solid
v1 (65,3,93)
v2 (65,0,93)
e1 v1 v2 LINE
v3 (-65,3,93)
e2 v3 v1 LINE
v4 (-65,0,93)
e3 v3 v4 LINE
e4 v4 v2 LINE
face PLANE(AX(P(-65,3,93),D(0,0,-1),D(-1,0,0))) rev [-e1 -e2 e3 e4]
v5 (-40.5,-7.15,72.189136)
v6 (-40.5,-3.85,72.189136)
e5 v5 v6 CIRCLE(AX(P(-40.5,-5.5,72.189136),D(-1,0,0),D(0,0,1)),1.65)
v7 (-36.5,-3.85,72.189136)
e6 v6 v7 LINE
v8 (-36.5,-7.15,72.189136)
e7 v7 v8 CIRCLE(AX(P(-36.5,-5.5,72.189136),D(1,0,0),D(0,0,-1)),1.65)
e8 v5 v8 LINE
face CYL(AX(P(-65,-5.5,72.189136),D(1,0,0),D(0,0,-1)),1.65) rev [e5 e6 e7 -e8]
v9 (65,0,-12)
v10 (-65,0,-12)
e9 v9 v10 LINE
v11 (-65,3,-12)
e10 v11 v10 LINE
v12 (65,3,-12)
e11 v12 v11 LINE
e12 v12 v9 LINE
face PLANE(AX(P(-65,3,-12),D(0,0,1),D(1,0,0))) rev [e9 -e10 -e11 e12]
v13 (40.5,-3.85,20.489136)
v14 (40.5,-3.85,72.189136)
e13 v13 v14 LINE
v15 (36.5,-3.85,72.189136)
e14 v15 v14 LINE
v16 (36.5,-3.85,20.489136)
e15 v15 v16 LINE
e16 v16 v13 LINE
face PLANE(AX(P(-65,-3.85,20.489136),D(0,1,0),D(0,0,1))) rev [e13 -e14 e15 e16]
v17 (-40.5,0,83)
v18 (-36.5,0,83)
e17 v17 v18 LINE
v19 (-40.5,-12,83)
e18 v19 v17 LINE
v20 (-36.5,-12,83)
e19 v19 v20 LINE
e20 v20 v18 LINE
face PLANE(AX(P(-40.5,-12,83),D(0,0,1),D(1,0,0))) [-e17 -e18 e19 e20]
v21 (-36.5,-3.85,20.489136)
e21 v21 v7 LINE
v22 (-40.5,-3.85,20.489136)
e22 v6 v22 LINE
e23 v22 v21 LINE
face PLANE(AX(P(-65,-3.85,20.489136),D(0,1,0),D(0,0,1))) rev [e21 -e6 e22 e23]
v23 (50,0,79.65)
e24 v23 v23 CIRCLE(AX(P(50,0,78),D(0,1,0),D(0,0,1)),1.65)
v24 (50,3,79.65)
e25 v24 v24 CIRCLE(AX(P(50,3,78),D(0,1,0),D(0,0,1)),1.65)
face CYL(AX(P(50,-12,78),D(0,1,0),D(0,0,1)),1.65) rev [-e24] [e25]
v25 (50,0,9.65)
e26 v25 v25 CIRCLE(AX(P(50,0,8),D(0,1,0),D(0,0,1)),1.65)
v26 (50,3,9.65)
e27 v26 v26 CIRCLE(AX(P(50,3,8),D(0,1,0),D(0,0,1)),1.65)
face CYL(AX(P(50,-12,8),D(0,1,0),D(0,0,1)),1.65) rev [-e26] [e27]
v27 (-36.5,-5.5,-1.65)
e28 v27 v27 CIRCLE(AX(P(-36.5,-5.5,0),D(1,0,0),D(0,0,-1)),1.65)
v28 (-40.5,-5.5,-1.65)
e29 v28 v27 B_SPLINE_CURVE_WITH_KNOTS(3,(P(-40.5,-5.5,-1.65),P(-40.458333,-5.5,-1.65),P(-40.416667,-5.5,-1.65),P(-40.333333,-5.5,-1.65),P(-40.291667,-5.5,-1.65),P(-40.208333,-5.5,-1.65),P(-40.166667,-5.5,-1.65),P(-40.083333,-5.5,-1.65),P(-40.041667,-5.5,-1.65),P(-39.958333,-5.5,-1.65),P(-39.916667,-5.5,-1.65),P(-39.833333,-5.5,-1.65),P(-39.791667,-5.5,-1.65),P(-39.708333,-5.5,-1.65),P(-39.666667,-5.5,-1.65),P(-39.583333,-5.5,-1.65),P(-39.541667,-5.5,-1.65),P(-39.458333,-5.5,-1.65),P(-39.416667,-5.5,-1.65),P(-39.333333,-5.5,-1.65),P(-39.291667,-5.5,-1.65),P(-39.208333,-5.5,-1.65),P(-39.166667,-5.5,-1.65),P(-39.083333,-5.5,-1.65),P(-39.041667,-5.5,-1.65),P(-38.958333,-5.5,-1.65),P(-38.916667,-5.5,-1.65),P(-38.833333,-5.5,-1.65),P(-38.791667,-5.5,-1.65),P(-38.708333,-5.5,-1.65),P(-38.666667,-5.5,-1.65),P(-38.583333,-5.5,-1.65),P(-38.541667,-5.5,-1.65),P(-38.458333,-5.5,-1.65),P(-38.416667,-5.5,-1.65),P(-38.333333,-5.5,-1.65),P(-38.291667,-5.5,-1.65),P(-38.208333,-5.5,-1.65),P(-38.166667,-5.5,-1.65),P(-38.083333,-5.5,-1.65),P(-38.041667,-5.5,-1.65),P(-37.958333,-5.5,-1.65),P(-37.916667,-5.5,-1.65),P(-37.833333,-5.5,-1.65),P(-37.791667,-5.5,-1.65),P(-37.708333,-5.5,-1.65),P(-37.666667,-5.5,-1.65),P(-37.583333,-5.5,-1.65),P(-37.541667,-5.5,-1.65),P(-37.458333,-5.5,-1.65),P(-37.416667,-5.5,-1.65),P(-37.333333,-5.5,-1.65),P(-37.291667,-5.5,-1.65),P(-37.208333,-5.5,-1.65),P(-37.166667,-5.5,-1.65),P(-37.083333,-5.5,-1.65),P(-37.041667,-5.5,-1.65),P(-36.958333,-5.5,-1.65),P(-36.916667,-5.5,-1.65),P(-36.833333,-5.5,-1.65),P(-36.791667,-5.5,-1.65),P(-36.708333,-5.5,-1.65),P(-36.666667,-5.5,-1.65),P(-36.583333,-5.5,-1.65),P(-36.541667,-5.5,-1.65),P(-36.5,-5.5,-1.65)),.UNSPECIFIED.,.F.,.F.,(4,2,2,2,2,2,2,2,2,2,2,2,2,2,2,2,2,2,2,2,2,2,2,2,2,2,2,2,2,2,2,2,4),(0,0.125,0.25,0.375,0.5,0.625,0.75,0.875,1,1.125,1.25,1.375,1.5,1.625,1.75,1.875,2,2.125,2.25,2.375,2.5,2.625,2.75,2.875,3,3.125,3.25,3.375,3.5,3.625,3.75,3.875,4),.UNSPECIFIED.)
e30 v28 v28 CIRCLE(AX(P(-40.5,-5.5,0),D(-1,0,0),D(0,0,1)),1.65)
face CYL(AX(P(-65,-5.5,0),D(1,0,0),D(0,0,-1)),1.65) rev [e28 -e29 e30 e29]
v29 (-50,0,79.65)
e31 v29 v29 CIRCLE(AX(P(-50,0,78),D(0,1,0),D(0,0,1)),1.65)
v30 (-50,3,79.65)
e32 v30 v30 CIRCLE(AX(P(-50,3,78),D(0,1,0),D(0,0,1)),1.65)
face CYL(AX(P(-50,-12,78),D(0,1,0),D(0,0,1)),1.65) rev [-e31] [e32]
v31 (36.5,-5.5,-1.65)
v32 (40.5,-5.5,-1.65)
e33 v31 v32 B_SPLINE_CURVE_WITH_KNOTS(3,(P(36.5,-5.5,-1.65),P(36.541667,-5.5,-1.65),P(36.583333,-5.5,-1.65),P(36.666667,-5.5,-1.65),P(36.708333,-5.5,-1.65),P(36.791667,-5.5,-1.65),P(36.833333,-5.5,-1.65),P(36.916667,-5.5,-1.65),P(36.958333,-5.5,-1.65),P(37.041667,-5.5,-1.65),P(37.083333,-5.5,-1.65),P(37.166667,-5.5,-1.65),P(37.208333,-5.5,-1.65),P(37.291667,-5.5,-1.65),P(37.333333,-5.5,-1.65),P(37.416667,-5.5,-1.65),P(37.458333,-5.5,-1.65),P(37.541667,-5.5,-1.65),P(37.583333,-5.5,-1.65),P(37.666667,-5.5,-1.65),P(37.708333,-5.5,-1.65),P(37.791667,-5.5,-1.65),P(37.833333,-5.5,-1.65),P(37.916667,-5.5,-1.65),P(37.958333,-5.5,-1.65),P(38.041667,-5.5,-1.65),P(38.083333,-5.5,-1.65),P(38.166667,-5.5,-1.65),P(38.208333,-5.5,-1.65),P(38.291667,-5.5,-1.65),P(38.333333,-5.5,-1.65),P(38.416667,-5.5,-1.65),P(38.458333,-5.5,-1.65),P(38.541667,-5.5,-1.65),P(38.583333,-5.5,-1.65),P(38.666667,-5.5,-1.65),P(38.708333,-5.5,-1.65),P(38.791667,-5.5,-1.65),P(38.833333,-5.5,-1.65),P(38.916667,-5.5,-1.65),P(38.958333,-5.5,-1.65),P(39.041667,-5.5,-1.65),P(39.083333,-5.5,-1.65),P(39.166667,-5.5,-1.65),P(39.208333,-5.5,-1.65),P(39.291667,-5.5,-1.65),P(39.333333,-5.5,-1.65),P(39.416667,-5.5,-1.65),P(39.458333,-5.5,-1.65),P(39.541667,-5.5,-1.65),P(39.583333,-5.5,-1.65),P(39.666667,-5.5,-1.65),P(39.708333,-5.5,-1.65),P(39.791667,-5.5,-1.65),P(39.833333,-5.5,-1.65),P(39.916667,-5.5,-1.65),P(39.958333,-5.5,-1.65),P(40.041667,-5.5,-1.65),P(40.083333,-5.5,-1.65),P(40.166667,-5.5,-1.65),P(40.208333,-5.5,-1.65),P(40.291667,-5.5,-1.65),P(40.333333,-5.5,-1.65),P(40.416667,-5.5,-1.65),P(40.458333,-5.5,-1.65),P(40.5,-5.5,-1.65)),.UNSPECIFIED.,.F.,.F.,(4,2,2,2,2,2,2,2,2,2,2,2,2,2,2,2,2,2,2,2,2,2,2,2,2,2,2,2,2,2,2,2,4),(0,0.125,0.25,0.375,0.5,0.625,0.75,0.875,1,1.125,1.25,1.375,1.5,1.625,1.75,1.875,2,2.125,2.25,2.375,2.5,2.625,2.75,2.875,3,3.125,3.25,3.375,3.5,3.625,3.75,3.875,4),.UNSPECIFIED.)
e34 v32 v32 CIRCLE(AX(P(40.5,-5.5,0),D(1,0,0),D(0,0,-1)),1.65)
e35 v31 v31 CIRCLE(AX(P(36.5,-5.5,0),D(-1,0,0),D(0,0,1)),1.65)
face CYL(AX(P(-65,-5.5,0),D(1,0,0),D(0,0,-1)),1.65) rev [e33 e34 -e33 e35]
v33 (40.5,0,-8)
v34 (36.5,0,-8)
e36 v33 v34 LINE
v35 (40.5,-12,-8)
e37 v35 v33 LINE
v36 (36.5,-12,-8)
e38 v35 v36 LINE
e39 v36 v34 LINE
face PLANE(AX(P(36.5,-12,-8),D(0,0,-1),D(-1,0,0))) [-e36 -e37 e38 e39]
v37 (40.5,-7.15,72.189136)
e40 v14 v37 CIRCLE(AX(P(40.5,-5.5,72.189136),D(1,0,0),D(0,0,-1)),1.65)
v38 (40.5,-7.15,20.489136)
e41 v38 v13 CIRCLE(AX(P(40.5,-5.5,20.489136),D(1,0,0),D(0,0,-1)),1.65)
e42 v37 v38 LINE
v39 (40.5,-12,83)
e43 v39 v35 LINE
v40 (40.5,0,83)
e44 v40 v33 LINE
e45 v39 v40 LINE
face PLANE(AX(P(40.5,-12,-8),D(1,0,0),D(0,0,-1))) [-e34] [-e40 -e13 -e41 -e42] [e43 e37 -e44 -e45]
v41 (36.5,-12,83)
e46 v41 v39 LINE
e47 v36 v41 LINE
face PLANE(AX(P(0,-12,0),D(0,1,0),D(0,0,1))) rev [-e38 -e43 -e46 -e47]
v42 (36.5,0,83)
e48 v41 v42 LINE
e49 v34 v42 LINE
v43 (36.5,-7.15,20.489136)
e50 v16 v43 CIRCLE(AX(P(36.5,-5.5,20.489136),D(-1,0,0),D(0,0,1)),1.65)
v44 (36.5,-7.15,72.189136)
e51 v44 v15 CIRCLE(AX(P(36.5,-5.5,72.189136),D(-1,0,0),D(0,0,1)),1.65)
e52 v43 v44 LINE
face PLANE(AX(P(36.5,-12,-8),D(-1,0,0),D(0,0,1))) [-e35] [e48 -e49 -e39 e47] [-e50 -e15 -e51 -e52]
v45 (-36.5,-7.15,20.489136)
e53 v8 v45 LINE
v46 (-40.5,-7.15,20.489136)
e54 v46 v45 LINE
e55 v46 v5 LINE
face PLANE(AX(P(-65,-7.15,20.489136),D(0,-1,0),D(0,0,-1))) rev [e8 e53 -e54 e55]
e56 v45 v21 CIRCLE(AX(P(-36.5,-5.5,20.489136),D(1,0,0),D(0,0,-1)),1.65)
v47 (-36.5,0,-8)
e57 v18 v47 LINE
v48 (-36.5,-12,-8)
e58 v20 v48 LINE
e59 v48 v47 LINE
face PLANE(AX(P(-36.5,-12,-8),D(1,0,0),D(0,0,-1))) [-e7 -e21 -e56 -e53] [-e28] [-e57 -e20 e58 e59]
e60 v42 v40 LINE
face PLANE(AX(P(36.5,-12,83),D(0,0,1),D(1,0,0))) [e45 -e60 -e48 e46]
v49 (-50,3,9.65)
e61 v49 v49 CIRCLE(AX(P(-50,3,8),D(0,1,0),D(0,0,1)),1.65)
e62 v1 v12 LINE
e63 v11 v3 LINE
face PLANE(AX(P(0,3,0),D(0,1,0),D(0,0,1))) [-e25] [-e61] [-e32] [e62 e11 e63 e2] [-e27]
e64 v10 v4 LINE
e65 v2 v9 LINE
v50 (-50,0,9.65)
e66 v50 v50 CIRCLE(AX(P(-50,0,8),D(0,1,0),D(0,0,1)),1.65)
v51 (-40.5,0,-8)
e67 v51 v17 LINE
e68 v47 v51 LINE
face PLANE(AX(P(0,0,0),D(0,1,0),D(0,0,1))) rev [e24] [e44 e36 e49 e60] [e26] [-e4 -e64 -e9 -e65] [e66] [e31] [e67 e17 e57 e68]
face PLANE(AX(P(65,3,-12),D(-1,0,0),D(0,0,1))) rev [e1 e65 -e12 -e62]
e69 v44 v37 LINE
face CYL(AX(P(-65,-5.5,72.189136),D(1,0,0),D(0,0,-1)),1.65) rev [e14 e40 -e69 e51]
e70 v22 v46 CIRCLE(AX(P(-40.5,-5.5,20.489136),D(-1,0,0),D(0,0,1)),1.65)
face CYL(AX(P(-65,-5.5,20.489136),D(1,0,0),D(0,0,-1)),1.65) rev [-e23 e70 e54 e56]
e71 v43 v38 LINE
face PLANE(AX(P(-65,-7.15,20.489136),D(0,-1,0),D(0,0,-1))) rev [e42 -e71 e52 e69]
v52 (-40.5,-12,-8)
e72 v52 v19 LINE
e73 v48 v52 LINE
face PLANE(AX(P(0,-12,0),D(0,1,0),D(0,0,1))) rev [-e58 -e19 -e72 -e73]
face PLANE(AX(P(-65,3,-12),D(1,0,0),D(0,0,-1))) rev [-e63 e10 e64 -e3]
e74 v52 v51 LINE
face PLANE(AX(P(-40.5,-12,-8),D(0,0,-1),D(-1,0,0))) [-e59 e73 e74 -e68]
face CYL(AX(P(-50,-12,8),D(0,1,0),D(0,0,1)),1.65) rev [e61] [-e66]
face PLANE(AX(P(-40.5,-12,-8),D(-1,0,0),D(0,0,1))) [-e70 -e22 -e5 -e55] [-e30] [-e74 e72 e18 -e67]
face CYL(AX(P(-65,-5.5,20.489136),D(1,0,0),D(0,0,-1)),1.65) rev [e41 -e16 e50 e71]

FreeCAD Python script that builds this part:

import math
import FreeCAD as App
import Part
import Sketcher

V = App.Vector

doc = App.newDocument("Part")
body = doc.addObject("PartDesign::Body", "Body")

sketch1 = body.newObject("Sketcher::SketchObject", "Sketch")
sketch1.AttachmentSupport = (doc.getObject("XZ_Plane"), [""])
sketch1.MapMode = "FlatFace"
sketch1.addGeometry(Part.LineSegment(V(-65, -12, 0), V(-65, 93, 0)), False)
sketch1.addGeometry(Part.LineSegment(V(-65, 93, 0), V(65, 93, 0)), False)
sketch1.addGeometry(Part.LineSegment(V(65, 93, 0), V(65, -12, 0)), False)
sketch1.addGeometry(Part.LineSegment(V(65, -12, 0), V(-65, -12, 0)), False)
sketch1.addConstraint(Sketcher.Constraint("Coincident", 0, 2, 1, 1))
sketch1.addConstraint(Sketcher.Constraint("Coincident", 1, 2, 2, 1))
sketch1.addConstraint(Sketcher.Constraint("Coincident", 2, 2, 3, 1))
sketch1.addConstraint(Sketcher.Constraint("Coincident", 3, 2, 0, 1))
sketch1.addConstraint(Sketcher.Constraint("Vertical", 0))
sketch1.addConstraint(Sketcher.Constraint("Horizontal", 1))
sketch1.addConstraint(Sketcher.Constraint("Vertical", 2))
sketch1.addConstraint(Sketcher.Constraint("Horizontal", 3))
sketch1.addConstraint(Sketcher.Constraint("DistanceX", 1, 1, 1, 2, 130.0))
sketch1.addConstraint(Sketcher.Constraint("DistanceY", 0, 1, 0, 2, 105.0))
sketch1.addConstraint(Sketcher.Constraint("DistanceX", 0, 2, -1, 1, 65.0))
sketch1.addConstraint(Sketcher.Constraint("DistanceY", -1, 1, 0, 2, 93.0))
pad1 = body.newObject("PartDesign::Pad", "Pad")
pad1.Profile = sketch1
pad1.Length = 3
pad1.Reversed = True

sketch2 = body.newObject("Sketcher::SketchObject", "Sketch001")
sketch2.AttachmentSupport = (doc.getObject("XZ_Plane"), [""])
sketch2.MapMode = "FlatFace"
sketch2.addGeometry(Part.LineSegment(V(-40.5, -8, 0), V(-40.5, 83, 0)), False)
sketch2.addGeometry(Part.LineSegment(V(-40.5, 83, 0), V(-36.5, 83, 0)), False)
sketch2.addGeometry(Part.LineSegment(V(-36.5, 83, 0), V(-36.5, -8, 0)), False)
sketch2.addGeometry(Part.LineSegment(V(-36.5, -8, 0), V(-40.5, -8, 0)), False)
sketch2.addGeometry(Part.LineSegment(V(36.5, -8, 0), V(36.5, 83, 0)), False)
sketch2.addGeometry(Part.LineSegment(V(36.5, 83, 0), V(40.5, 83, 0)), False)
sketch2.addGeometry(Part.LineSegment(V(40.5, 83, 0), V(40.5, -8, 0)), False)
sketch2.addGeometry(Part.LineSegment(V(40.5, -8, 0), V(36.5, -8, 0)), False)
sketch2.addConstraint(Sketcher.Constraint("Coincident", 0, 2, 1, 1))
sketch2.addConstraint(Sketcher.Constraint("Coincident", 1, 2, 2, 1))
sketch2.addConstraint(Sketcher.Constraint("Coincident", 2, 2, 3, 1))
sketch2.addConstraint(Sketcher.Constraint("Coincident", 3, 2, 0, 1))
sketch2.addConstraint(Sketcher.Constraint("Coincident", 4, 2, 5, 1))
sketch2.addConstraint(Sketcher.Constraint("Coincident", 5, 2, 6, 1))
sketch2.addConstraint(Sketcher.Constraint("Coincident", 6, 2, 7, 1))
sketch2.addConstraint(Sketcher.Constraint("Coincident", 7, 2, 4, 1))
sketch2.addConstraint(Sketcher.Constraint("Vertical", 0))
sketch2.addConstraint(Sketcher.Constraint("Horizontal", 1))
sketch2.addConstraint(Sketcher.Constraint("Vertical", 2))
sketch2.addConstraint(Sketcher.Constraint("Horizontal", 3))
sketch2.addConstraint(Sketcher.Constraint("Vertical", 4))
sketch2.addConstraint(Sketcher.Constraint("Horizontal", 5))
sketch2.addConstraint(Sketcher.Constraint("Vertical", 6))
sketch2.addConstraint(Sketcher.Constraint("Horizontal", 7))
sketch2.addConstraint(Sketcher.Constraint("Symmetric", 1, 2, 4, 2, -2))
sketch2.addConstraint(Sketcher.Constraint("Symmetric", 3, 2, 6, 2, -2))
sketch2.addConstraint(Sketcher.Constraint("DistanceX", 1, 1, 1, 2, 4.0))
sketch2.addConstraint(Sketcher.Constraint("DistanceY", 0, 1, 0, 2, 91.0))
sketch2.addConstraint(Sketcher.Constraint("DistanceY", -1, 1, 0, 2, 83.0))
sketch2.addConstraint(Sketcher.Constraint("DistanceX", 1, 2, 4, 2, 73.0))
pad2 = body.newObject("PartDesign::Pad", "Pad001")
pad2.Profile = sketch2
pad2.Length = 12

sketch3 = body.newObject("Sketcher::SketchObject", "Sketch002")
sketch3.AttachmentSupport = (doc.getObject("YZ_Plane"), [""])
sketch3.MapMode = "FlatFace"
sketch3.AttachmentOffset = App.Placement(V(0, 0, 40.5), App.Rotation())
sketch3.addGeometry(Part.Circle(V(-5.5, 0, 0), V(0, 0, 1), 1.6), False)
sketch3.addGeometry(Part.LineSegment(V(-7.2, 72.2, 0), V(-7.2, 20.5, 0)), False)
sketch3.addGeometry(Part.ArcOfCircle(Part.Circle(V(-5.5, 20.5, 0), V(0, 0, 1), 1.6), math.radians(180), math.radians(360)), False)
sketch3.addGeometry(Part.LineSegment(V(-3.9, 20.5, 0), V(-3.9, 72.2, 0)), False)
sketch3.addGeometry(Part.ArcOfCircle(Part.Circle(V(-5.5, 72.2, 0), V(0, 0, 1), 1.6), math.radians(0), math.radians(180)), False)
sketch3.addConstraint(Sketcher.Constraint("Tangent", 1, 2, 2, 1))
sketch3.addConstraint(Sketcher.Constraint("Tangent", 2, 2, 3, 1))
sketch3.addConstraint(Sketcher.Constraint("Tangent", 3, 2, 4, 1))
sketch3.addConstraint(Sketcher.Constraint("Tangent", 4, 2, 1, 1))
sketch3.addConstraint(Sketcher.Constraint("Vertical", 1))
sketch3.addConstraint(Sketcher.Constraint("Vertical", 3))
sketch3.addConstraint(Sketcher.Constraint("Equal", 0, 2))
sketch3.addConstraint(Sketcher.Constraint("PointOnObject", 0, 3, -1))
sketch3.addConstraint(Sketcher.Constraint("Vertical", 0, 3, 2, 3))
sketch3.addConstraint(Sketcher.Constraint("Diameter", 0, 3.3))
sketch3.addConstraint(Sketcher.Constraint("DistanceY", 1, 2, 1, 1, 51.7))
sketch3.addConstraint(Sketcher.Constraint("DistanceX", 0, 3, -1, 1, 5.5))
sketch3.addConstraint(Sketcher.Constraint("DistanceY", -1, 1, 2, 3, 20.489136))
pocket1 = body.newObject("PartDesign::Pocket", "Pocket")
pocket1.Profile = sketch3
pocket1.Type = "ThroughAll"

sketch4 = body.newObject("Sketcher::SketchObject", "Sketch003")
sketch4.AttachmentSupport = (doc.getObject("XZ_Plane"), [""])
sketch4.MapMode = "FlatFace"
sketch4.AttachmentOffset = App.Placement(V(0, 0, -3), App.Rotation())
sketch4.addGeometry(Part.Circle(V(-50, 8, 0), V(0, 0, 1), 1.6), False)
sketch4.addGeometry(Part.Circle(V(-50, 78, 0), V(0, 0, 1), 1.6), False)
sketch4.addGeometry(Part.Circle(V(50, 8, 0), V(0, 0, 1), 1.6), False)
sketch4.addGeometry(Part.Circle(V(50, 78, 0), V(0, 0, 1), 1.6), False)
sketch4.addConstraint(Sketcher.Constraint("Equal", 0, 1))
sketch4.addConstraint(Sketcher.Constraint("Equal", 1, 2))
sketch4.addConstraint(Sketcher.Constraint("Equal", 2, 3))
sketch4.addConstraint(Sketcher.Constraint("Symmetric", 0, 3, 2, 3, -2))
sketch4.addConstraint(Sketcher.Constraint("Symmetric", 1, 3, 3, 3, -2))
sketch4.addConstraint(Sketcher.Constraint("Vertical", 0, 3, 1, 3))
sketch4.addConstraint(Sketcher.Constraint("Diameter", 0, 3.3))
sketch4.addConstraint(Sketcher.Constraint("DistanceX", 0, 3, -1, 1, 50.0))
sketch4.addConstraint(Sketcher.Constraint("DistanceY", -1, 1, 0, 3, 8.0))
sketch4.addConstraint(Sketcher.Constraint("DistanceY", -1, 1, 1, 3, 78.0))
pocket2 = body.newObject("PartDesign::Pocket", "Pocket001")
pocket2.Profile = sketch4
pocket2.Type = "ThroughAll"
pocket2.Reversed = True

doc.recompute()
